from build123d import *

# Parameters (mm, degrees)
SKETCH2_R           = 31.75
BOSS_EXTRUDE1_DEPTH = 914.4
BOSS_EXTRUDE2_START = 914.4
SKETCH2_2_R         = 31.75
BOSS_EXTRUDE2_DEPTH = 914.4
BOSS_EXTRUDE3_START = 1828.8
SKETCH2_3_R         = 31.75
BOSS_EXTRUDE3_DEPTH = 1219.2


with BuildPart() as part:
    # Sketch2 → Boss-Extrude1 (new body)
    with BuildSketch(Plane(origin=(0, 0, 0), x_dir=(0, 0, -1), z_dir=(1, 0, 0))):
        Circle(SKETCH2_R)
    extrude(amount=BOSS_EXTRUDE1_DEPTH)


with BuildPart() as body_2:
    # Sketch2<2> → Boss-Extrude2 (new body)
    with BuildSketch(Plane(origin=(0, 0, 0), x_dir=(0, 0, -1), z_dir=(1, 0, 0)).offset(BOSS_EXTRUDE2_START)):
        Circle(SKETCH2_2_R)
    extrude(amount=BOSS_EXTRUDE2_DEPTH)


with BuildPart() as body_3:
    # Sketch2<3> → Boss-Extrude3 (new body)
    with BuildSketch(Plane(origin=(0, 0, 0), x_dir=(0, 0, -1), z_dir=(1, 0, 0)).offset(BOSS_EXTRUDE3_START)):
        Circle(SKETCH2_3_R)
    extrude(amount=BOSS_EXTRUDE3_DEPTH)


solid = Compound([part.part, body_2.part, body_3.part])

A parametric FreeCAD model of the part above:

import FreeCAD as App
import Part
import Sketcher
Q = App.Units.Quantity

doc = App.newDocument("Part")
body = doc.addObject("PartDesign::Body", "Body")

# Sketch on YZ plane
sketch1 = body.newObject("Sketcher::SketchObject", "Sketch")
sketch1.AttachmentSupport = (doc.getObject("YZ_Plane"), [""])
sketch1.MapMode = "FlatFace"
sketch1.addGeometry(Part.Circle(App.Vector(0, 0, 0), App.Vector(0, 0, 1), 31.75), False)
sketch1.addConstraint([
    Sketcher.Constraint("Coincident", 0, 3, -1, 1),
    Sketcher.Constraint("Diameter", 0, Q("2.5 in")),
])
pad1 = body.newObject("PartDesign::Pad", "Pad")
pad1.Profile = sketch1
pad1.Length = Q("36 in")
body2 = doc.addObject("PartDesign::Body", "Body001")

# Sketch on YZ plane
sketch2 = body2.newObject("Sketcher::SketchObject", "Sketch001")
sketch2.AttachmentSupport = (doc.getObject("YZ_Plane001"), [""])
sketch2.MapMode = "FlatFace"
sketch2.AttachmentOffset = App.Placement(App.Vector(0, 0, 36 * 25.4), App.Rotation())
sketch2.addGeometry(Part.Circle(App.Vector(0, 0, 0), App.Vector(0, 0, 1), 31.75), False)
sketch2.addConstraint([
    Sketcher.Constraint("Coincident", 0, 3, -1, 1),
    Sketcher.Constraint("Diameter", 0, Q("2.5 in")),
])
pad2 = body2.newObject("PartDesign::Pad", "Pad001")
pad2.Profile = sketch2
pad2.Length = Q("36 in")
body3 = doc.addObject("PartDesign::Body", "Body002")

# Sketch on YZ plane
sketch3 = body3.newObject("Sketcher::SketchObject", "Sketch002")
sketch3.AttachmentSupport = (doc.getObject("YZ_Plane002"), [""])
sketch3.MapMode = "FlatFace"
sketch3.AttachmentOffset = App.Placement(App.Vector(0, 0, 72 * 25.4), App.Rotation())
sketch3.addGeometry(Part.Circle(App.Vector(0, 0, 0), App.Vector(0, 0, 1), 31.75), False)
sketch3.addConstraint([
    Sketcher.Constraint("Coincident", 0, 3, -1, 1),
    Sketcher.Constraint("Diameter", 0, Q("2.5 in")),
])
pad3 = body3.newObject("PartDesign::Pad", "Pad002")
pad3.Profile = sketch3
pad3.Length = Q("48 in")

doc.recompute()
